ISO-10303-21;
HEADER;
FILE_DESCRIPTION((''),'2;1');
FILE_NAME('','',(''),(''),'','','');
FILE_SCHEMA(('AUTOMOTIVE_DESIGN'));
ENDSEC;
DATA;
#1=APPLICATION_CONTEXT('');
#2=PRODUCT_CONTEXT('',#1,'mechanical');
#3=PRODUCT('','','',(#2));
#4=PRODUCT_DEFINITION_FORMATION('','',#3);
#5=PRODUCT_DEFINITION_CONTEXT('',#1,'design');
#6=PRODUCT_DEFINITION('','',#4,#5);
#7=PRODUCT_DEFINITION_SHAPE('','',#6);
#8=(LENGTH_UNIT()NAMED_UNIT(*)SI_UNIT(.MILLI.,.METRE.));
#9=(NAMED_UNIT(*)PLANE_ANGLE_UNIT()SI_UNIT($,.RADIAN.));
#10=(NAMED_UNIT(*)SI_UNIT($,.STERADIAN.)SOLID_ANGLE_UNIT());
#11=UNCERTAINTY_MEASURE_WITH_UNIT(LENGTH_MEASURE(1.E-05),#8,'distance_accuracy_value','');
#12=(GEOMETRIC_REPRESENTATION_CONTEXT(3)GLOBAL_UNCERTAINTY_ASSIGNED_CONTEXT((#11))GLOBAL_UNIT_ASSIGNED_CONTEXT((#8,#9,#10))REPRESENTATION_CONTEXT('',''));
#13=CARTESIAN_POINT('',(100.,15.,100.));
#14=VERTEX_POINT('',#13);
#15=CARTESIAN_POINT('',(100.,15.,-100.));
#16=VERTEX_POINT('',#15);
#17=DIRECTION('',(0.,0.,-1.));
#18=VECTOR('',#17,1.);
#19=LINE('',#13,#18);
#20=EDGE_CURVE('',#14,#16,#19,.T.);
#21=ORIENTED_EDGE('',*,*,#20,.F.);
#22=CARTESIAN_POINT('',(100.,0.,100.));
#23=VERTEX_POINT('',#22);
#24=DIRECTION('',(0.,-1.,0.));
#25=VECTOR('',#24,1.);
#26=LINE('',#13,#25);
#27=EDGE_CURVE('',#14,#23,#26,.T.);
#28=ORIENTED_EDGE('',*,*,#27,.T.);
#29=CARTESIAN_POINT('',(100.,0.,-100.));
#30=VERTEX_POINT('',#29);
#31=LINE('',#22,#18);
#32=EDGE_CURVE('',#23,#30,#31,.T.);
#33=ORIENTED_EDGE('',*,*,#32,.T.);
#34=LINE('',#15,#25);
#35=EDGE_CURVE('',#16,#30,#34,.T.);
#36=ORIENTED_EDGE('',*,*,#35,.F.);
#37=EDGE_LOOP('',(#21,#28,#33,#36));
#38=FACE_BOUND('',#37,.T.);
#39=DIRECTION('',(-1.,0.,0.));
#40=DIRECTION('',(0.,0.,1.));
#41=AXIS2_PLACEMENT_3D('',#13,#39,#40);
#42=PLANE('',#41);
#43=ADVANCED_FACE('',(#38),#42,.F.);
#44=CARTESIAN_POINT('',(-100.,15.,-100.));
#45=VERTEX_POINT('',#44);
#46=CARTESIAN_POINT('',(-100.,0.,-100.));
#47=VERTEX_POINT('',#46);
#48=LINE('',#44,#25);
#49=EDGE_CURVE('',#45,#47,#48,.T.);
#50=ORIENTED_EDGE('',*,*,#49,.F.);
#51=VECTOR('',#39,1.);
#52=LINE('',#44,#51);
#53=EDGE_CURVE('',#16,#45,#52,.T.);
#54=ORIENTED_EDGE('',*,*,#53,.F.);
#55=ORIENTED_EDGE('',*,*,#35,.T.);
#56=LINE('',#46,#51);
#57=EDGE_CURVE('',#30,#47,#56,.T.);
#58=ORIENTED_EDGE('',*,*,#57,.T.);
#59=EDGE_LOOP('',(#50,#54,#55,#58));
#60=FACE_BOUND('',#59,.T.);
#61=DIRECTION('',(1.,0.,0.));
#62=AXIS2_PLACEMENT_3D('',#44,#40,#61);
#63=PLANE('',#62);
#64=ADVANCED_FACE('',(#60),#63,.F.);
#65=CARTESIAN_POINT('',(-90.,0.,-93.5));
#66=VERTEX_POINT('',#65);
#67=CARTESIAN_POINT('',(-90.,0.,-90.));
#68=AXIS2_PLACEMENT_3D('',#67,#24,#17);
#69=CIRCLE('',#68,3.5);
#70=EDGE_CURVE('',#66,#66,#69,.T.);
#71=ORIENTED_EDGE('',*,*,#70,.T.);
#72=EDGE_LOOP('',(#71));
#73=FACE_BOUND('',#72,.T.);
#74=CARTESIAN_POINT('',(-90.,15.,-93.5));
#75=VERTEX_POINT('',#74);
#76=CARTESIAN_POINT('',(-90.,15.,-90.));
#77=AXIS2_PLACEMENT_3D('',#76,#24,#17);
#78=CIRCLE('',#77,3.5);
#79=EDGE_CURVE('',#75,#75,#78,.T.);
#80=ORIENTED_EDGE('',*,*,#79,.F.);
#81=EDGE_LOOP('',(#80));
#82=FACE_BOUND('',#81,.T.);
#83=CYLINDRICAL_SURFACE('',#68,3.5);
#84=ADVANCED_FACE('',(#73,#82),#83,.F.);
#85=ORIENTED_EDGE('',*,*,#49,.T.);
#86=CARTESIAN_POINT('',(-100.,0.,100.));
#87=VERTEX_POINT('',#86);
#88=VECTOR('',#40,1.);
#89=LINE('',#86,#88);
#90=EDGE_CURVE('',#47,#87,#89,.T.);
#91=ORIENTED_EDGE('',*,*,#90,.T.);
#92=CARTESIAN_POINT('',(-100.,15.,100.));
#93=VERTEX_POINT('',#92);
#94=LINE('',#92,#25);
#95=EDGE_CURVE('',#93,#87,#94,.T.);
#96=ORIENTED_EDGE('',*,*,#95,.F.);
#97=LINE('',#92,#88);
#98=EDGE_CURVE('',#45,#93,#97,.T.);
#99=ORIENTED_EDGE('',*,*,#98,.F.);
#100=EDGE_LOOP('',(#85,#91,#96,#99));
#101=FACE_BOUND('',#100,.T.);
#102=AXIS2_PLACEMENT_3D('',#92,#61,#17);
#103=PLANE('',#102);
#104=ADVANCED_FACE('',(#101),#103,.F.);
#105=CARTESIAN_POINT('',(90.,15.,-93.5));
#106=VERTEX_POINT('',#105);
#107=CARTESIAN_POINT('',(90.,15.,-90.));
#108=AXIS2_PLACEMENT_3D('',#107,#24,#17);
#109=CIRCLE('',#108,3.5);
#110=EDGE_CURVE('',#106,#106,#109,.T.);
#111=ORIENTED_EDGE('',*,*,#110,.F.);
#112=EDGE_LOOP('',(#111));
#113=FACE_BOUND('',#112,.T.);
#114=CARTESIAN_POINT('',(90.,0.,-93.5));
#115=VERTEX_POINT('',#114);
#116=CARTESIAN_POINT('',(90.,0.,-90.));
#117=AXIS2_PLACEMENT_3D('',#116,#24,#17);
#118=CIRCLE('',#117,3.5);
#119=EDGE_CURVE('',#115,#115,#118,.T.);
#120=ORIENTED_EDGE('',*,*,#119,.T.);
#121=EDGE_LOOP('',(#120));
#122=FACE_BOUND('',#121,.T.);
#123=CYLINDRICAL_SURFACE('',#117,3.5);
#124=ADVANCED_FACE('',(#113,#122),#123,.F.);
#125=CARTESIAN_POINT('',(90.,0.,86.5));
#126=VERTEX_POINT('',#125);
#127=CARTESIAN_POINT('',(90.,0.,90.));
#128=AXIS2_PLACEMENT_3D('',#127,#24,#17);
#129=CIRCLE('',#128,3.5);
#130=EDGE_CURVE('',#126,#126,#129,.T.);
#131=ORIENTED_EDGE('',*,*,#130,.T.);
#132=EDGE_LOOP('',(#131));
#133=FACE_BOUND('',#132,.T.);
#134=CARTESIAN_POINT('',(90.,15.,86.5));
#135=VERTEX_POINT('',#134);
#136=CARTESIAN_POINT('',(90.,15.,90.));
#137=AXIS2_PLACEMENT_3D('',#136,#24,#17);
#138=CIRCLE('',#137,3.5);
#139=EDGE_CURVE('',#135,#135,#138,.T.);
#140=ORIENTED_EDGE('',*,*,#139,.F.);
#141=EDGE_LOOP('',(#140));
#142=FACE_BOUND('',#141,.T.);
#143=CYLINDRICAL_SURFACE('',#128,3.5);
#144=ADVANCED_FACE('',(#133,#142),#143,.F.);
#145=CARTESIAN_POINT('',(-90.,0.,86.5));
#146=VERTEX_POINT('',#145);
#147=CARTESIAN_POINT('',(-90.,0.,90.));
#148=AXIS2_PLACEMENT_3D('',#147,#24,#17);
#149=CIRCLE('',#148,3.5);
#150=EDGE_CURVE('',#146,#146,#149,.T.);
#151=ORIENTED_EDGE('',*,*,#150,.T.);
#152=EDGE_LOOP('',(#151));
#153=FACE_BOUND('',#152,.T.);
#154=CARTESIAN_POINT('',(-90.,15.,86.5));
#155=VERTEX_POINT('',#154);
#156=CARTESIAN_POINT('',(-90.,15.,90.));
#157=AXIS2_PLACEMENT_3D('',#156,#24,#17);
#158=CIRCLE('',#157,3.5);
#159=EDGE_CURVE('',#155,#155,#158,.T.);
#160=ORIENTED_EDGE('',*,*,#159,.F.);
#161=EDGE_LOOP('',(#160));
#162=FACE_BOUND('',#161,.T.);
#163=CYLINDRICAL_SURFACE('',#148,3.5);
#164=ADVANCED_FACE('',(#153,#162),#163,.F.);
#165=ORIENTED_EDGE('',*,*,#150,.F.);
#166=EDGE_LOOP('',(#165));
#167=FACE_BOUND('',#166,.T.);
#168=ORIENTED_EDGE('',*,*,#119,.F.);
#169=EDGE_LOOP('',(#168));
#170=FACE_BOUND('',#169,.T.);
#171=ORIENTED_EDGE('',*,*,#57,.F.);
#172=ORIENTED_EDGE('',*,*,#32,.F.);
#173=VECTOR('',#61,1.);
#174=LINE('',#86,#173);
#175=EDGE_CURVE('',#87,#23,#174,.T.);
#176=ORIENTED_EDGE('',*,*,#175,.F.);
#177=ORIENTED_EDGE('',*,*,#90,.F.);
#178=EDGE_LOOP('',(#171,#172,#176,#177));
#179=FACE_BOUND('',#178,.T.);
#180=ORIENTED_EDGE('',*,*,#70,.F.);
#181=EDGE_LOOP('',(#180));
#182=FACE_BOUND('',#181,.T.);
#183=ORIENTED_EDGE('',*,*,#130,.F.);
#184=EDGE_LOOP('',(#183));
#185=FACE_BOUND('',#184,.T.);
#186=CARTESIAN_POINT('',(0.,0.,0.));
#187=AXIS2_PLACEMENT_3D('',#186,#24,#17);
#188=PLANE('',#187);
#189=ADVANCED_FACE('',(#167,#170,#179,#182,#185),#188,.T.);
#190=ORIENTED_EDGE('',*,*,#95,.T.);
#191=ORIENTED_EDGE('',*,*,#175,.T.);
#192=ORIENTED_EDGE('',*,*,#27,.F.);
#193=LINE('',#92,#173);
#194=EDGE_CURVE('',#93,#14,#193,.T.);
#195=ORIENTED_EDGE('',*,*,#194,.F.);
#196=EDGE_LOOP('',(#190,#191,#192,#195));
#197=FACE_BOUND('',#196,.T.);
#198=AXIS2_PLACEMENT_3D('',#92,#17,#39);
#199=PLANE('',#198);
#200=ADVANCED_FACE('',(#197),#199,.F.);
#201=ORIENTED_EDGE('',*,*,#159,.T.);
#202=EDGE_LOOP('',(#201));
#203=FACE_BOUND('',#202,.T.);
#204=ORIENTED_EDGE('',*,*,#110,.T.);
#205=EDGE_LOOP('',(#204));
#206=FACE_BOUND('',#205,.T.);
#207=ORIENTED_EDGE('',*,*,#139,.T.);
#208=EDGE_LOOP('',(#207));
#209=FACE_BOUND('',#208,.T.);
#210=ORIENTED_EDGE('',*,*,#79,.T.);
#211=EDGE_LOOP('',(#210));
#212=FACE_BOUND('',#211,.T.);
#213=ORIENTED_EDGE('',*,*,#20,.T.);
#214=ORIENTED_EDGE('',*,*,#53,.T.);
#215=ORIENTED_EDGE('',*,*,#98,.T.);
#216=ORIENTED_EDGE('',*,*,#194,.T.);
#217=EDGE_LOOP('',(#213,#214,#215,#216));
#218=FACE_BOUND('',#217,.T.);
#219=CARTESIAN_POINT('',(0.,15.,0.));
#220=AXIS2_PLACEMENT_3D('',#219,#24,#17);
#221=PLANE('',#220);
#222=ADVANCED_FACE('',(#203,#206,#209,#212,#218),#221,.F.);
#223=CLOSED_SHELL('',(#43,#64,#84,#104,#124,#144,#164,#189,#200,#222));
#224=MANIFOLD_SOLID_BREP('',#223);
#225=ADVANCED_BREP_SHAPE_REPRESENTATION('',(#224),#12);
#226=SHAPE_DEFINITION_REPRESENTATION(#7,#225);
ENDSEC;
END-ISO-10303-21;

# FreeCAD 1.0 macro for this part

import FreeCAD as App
import Part
import Sketcher

V = App.Vector

doc = App.newDocument("Part")
body = doc.addObject("PartDesign::Body", "Body")

sketch1 = doc.addObject("Sketcher::SketchObject", "Sketch")
body.addObject(sketch1)
sketch1.AttachmentSupport = (doc.XZ_Plane, [""])
sketch1.MapMode = "FlatFace"
sketch1.addGeometry([
    Part.LineSegment(V(-100, -100, 0), V(-100, 100, 0)),
    Part.LineSegment(V(-100, 100, 0), V(100, 100, 0)),
    Part.LineSegment(V(100, 100, 0), V(100, -100, 0)),
    Part.LineSegment(V(100, -100, 0), V(-100, -100, 0)),
], False)
sketch1.addConstraint([
    Sketcher.Constraint("Coincident", 0, 2, 1, 1),
    Sketcher.Constraint("Coincident", 1, 2, 2, 1),
    Sketcher.Constraint("Coincident", 2, 2, 3, 1),
    Sketcher.Constraint("Coincident", 3, 2, 0, 1),
    Sketcher.Constraint("Vertical", 0),
    Sketcher.Constraint("Horizontal", 1),
    Sketcher.Constraint("Vertical", 2),
    Sketcher.Constraint("Horizontal", 3),
    Sketcher.Constraint("Symmetric", 0, 2, 2, 2, -1, 1),
    Sketcher.Constraint("Equal", 3, 0),
    Sketcher.Constraint("DistanceX", 1, 1, 1, 2, 200.0),
])
pad1 = doc.addObject("PartDesign::Pad", "Pad")
body.addObject(pad1)
pad1.Profile = sketch1
pad1.Length = 15
pad1.Reversed = True

sketch2 = doc.addObject("Sketcher::SketchObject", "Sketch001")
body.addObject(sketch2)
sketch2.AttachmentSupport = (doc.XZ_Plane, [""])
sketch2.MapMode = "FlatFace"
sketch2.addGeometry([
    Part.Circle(V(-90, -90, 0), V(0, 0, 1), 3.5),
    Part.Circle(V(-90, 90, 0), V(0, 0, 1), 3.5),
    Part.Circle(V(90, 90, 0), V(0, 0, 1), 3.5),
    Part.Circle(V(90, -90, 0), V(0, 0, 1), 3.5),
], False)
sketch2.addConstraint([
    Sketcher.Constraint("Equal", 0, 1),
    Sketcher.Constraint("Equal", 1, 2),
    Sketcher.Constraint("Equal", 2, 3),
    Sketcher.Constraint("Symmetric", 0, 3, 2, 3, -1, 1),
    Sketcher.Constraint("Symmetric", 1, 3, 3, 3, -1, 1),
    Sketcher.Constraint("Symmetric", 1, 3, 2, 3, -2),
    Sketcher.Constraint("Diameter", 0, 7.0),
    Sketcher.Constraint("DistanceX", 0, 3, -1, 1, 90.0),
    Sketcher.Constraint("DistanceY", 0, 3, -1, 1, 90.0),
])
doc.recompute()
hole = doc.addObject("PartDesign::Hole", "Hole")
body.addObject(hole)
hole.Profile = sketch2
hole.ThreadType = "None"
hole.Diameter = 7
hole.DepthType = "ThroughAll"

doc.recompute()
